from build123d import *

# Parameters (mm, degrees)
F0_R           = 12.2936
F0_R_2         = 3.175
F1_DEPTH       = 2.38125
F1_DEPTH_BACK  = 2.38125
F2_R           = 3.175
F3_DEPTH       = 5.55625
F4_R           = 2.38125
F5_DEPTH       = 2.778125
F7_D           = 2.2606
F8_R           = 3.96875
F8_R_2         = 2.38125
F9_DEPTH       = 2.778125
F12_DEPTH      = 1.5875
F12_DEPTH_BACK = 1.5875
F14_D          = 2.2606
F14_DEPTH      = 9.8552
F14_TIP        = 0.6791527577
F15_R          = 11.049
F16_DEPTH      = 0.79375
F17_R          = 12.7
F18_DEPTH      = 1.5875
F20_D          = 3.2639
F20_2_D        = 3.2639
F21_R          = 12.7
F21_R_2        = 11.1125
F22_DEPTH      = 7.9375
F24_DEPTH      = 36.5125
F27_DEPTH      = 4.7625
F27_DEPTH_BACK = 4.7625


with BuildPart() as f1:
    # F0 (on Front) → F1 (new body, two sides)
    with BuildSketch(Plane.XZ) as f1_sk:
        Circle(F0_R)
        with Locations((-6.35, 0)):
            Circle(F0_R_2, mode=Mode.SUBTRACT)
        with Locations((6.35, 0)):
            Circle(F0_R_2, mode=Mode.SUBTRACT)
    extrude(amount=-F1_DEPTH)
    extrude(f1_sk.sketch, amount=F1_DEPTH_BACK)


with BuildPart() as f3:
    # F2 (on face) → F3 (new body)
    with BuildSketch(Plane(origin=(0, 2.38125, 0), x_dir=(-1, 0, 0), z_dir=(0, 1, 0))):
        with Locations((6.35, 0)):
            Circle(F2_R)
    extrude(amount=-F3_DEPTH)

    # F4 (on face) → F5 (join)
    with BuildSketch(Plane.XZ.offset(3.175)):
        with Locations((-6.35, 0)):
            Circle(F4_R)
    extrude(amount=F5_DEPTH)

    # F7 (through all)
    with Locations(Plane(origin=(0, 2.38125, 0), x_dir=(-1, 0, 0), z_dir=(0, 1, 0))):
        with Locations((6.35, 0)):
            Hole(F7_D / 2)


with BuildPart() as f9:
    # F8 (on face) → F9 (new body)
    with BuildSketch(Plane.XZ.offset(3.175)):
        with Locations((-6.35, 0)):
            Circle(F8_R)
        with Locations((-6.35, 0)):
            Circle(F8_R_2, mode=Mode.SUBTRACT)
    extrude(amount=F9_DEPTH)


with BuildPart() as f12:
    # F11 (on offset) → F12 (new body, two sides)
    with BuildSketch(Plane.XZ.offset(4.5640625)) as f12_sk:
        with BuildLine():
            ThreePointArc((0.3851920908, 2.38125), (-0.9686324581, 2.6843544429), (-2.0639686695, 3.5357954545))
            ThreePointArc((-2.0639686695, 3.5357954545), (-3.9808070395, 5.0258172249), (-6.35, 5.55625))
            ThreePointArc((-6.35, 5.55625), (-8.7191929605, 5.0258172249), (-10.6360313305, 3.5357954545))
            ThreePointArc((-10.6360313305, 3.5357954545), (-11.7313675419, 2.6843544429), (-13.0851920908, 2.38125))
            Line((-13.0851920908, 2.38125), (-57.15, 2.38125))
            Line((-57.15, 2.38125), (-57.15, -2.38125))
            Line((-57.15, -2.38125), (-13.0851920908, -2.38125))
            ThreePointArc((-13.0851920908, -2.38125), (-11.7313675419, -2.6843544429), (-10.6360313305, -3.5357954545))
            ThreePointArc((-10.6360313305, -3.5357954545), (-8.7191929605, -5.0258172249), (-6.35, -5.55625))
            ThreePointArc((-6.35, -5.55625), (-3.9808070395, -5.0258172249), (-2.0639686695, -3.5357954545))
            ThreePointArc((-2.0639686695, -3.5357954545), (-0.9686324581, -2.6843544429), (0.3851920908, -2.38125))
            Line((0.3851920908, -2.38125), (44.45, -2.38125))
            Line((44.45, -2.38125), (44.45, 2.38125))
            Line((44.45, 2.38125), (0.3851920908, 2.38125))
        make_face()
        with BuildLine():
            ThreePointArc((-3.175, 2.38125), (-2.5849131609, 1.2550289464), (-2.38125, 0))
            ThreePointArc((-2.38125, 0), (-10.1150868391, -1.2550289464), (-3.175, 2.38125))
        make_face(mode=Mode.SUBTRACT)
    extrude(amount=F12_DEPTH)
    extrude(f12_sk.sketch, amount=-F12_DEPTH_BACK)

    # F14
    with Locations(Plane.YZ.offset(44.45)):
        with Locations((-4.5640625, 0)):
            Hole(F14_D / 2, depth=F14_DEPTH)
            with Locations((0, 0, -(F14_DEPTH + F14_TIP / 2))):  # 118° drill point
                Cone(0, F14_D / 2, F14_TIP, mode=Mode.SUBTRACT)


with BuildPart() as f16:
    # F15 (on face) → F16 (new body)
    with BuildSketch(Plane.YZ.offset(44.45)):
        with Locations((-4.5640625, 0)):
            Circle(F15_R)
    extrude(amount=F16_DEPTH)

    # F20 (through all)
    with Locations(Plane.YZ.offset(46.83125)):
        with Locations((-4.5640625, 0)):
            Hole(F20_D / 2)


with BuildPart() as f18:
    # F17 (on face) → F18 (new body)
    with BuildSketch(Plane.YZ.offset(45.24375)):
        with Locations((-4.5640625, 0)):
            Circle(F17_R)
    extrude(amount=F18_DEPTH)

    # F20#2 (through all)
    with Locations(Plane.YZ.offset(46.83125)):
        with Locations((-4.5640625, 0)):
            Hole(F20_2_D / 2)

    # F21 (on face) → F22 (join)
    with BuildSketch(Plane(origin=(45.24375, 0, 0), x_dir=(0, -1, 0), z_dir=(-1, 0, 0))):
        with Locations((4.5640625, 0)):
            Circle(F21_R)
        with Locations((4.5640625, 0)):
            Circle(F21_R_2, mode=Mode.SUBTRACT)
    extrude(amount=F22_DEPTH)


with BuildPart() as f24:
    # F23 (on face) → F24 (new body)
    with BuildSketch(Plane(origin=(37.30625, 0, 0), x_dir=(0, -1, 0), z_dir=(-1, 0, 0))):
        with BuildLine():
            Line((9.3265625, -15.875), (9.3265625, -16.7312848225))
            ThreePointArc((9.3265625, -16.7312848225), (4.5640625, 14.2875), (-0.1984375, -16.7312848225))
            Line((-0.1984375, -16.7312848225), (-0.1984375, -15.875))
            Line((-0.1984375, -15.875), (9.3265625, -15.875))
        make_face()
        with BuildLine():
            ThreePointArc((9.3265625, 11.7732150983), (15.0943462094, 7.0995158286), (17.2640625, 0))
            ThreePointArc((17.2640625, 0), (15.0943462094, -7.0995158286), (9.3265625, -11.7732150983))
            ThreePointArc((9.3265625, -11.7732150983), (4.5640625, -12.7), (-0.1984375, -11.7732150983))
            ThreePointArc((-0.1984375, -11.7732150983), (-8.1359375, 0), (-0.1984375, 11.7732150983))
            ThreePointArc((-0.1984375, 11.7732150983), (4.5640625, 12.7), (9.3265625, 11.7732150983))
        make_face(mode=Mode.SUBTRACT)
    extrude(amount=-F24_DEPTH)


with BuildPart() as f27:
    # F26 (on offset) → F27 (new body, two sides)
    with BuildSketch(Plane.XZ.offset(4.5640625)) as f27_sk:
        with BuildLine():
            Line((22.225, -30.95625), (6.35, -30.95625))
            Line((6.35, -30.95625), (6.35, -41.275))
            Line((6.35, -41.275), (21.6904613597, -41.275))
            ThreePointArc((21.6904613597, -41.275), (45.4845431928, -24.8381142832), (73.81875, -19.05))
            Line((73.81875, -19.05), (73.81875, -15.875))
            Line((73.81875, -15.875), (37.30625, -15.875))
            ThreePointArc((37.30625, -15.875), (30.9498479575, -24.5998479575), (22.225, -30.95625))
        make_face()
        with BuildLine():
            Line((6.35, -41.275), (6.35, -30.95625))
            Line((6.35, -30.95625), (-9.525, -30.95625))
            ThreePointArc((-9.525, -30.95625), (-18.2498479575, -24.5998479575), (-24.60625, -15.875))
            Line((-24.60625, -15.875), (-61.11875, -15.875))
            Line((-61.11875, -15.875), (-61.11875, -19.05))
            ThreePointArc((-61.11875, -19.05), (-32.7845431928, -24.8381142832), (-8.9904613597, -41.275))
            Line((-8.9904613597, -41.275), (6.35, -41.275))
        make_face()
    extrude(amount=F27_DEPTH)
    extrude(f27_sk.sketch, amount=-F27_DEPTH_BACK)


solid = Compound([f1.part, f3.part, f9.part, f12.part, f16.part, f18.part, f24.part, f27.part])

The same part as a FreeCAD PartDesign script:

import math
import FreeCAD as App
import Part
import Sketcher

V = App.Vector
Q = App.Units.Quantity

doc = App.newDocument("Part")
body = doc.addObject("PartDesign::Body", "Body")

sketch1 = body.newObject("Sketcher::SketchObject", "Sketch")
sketch1.AttachmentSupport = (doc.getObject("XZ_Plane"), [""])
sketch1.MapMode = "FlatFace"
sketch1.addGeometry([
    Part.Circle(V(0, 0, 0), V(0, 0, 1), 12.3),
    Part.Circle(V(-6.3, 0, 0), V(0, 0, 1), 3.2),
    Part.Circle(V(6.3, 0, 0), V(0, 0, 1), 3.2),
], False)
sketch1.addConstraint([
    Sketcher.Constraint("Coincident", 0, 3, -1, 1),
    Sketcher.Constraint("Equal", 1, 2),
    Sketcher.Constraint("Symmetric", 1, 3, 2, 3, -1, 1),
    Sketcher.Constraint("PointOnObject", 1, 3, -1),
    Sketcher.Constraint("Diameter", 1, Q("0.25 in")),
    Sketcher.Constraint("Diameter", 0, Q("0.968 in")),
    Sketcher.Constraint("DistanceX", 1, 3, 2, 3, Q("0.5 in")),
])
pad1 = body.newObject("PartDesign::Pad", "Pad")
pad1.Profile = sketch1
pad1.Type = "TwoLengths"
pad1.Length = Q("0.09375 in")
pad1.Length2 = Q("0.09375 in")
pad1.Reversed = True
body2 = doc.addObject("PartDesign::Body", "Body001")

sketch2 = body2.newObject("Sketcher::SketchObject", "Sketch001")
sketch2.AttachmentSupport = (doc.getObject("XZ_Plane001"), [""])
sketch2.MapMode = "FlatFace"
sketch2.AttachmentOffset = App.Placement(V(0, 0, -0.09375 * 25.4), App.Rotation())
sketch2.addGeometry(Part.Circle(V(-6.3, 0, 0), V(0, 0, 1), 3.2), False)
sketch2.addConstraint([
    Sketcher.Constraint("PointOnObject", 0, 3, -1),
    Sketcher.Constraint("Diameter", 0, Q("0.25 in")),
    Sketcher.Constraint("DistanceX", 0, 3, -1, 1, Q("0.25 in")),
])
pad2 = body2.newObject("PartDesign::Pad", "Pad001")
pad2.Profile = sketch2
pad2.Length = Q("0.21875 in")

sketch3 = body2.newObject("Sketcher::SketchObject", "Sketch002")
sketch3.AttachmentSupport = (doc.getObject("XZ_Plane001"), [""])
sketch3.MapMode = "FlatFace"
sketch3.AttachmentOffset = App.Placement(V(0, 0, 0.125 * 25.4), App.Rotation())
sketch3.addGeometry(Part.Circle(V(-6.3, 0, 0), V(0, 0, 1), 2.4), False)
sketch3.addConstraint([
    Sketcher.Constraint("PointOnObject", 0, 3, -1),
    Sketcher.Constraint("Diameter", 0, Q("0.1875 in")),
    Sketcher.Constraint("DistanceX", 0, 3, -1, 1, Q("0.25 in")),
])
pad3 = body2.newObject("PartDesign::Pad", "Pad002")
pad3.Profile = sketch3
pad3.Length = Q("0.109375 in")

sketch4 = body2.newObject("Sketcher::SketchObject", "Sketch003")
sketch4.AttachmentSupport = (doc.getObject("XZ_Plane001"), [""])
sketch4.MapMode = "FlatFace"
sketch4.AttachmentOffset = App.Placement(V(0, 0, -0.09375 * 25.4), App.Rotation())
sketch4.addGeometry(Part.Circle(V(-6.3, 0, 0), V(0, 0, 1), 1.1), False)
sketch4.addConstraint([
    Sketcher.Constraint("PointOnObject", 0, 3, -1),
    Sketcher.Constraint("Diameter", 0, Q("0.089 in")),
    Sketcher.Constraint("DistanceX", 0, 3, -1, 1, Q("0.25 in")),
])
doc.recompute()
hole = body2.newObject("PartDesign::Hole", "Hole")
hole.Profile = sketch4
hole.ThreadType = "None"
hole.Diameter = Q("0.089 in")
hole.DepthType = "ThroughAll"
hole.Reversed = True
body3 = doc.addObject("PartDesign::Body", "Body002")

sketch5 = body3.newObject("Sketcher::SketchObject", "Sketch004")
sketch5.AttachmentSupport = (doc.getObject("XZ_Plane002"), [""])
sketch5.MapMode = "FlatFace"
sketch5.AttachmentOffset = App.Placement(V(0, 0, 0.125 * 25.4), App.Rotation())
sketch5.addGeometry([
    Part.Circle(V(-6.3, 0, 0), V(0, 0, 1), 4),
    Part.Circle(V(-6.3, 0, 0), V(0, 0, 1), 2.4),
], False)
sketch5.addConstraint([
    Sketcher.Constraint("Coincident", 1, 3, 0, 3),
    Sketcher.Constraint("PointOnObject", 0, 3, -1),
    Sketcher.Constraint("Diameter", 0, Q("0.3125 in")),
    Sketcher.Constraint("Diameter", 1, Q("0.1875 in")),
    Sketcher.Constraint("DistanceX", 0, 3, -1, 1, Q("0.25 in")),
])
pad4 = body3.newObject("PartDesign::Pad", "Pad003")
pad4.Profile = sketch5
pad4.Length = Q("0.109375 in")
body4 = doc.addObject("PartDesign::Body", "Body003")

sketch6 = body4.newObject("Sketcher::SketchObject", "Sketch005")
sketch6.AttachmentSupport = (doc.getObject("XZ_Plane003"), [""])
sketch6.MapMode = "FlatFace"
sketch6.AttachmentOffset = App.Placement(V(0, 0, 4.564063), App.Rotation())
sketch6.addGeometry([
    Part.ArcOfCircle(Part.Circle(V(0.4, 5.6, 0), V(0, 0, 1), 3.2), math.radians(-140), math.radians(-90)),
    Part.ArcOfCircle(Part.Circle(V(-6.3, 0, 0), V(0, 0, 1), 5.6), math.radians(40), math.radians(90)),
    Part.ArcOfCircle(Part.Circle(V(-6.3, 0, 0), V(0, 0, 1), 5.6), math.radians(90), math.radians(140)),
    Part.ArcOfCircle(Part.Circle(V(-13.1, 5.6, 0), V(0, 0, 1), 3.2), math.radians(-90), math.radians(-40)),
    Part.LineSegment(V(-13.1, 2.4, 0), V(-57.1, 2.4, 0)),
    Part.LineSegment(V(-57.1, 2.4, 0), V(-57.1, -2.4, 0)),
    Part.LineSegment(V(-57.1, -2.4, 0), V(-13.1, -2.4, 0)),
    Part.ArcOfCircle(Part.Circle(V(-13.1, -5.6, 0), V(0, 0, 1), 3.2), math.radians(40), math.radians(90)),
    Part.ArcOfCircle(Part.Circle(V(-6.3, 0, 0), V(0, 0, 1), 5.6), math.radians(-140), math.radians(-90)),
    Part.ArcOfCircle(Part.Circle(V(-6.3, 0, 0), V(0, 0, 1), 5.6), math.radians(-90), math.radians(-40)),
    Part.ArcOfCircle(Part.Circle(V(0.4, -5.6, 0), V(0, 0, 1), 3.2), math.radians(90), math.radians(140)),
    Part.LineSegment(V(0.4, -2.4, 0), V(44.5, -2.4, 0)),
    Part.LineSegment(V(44.5, -2.4, 0), V(44.5, 2.4, 0)),
    Part.LineSegment(V(44.5, 2.4, 0), V(0.4, 2.4, 0)),
    Part.ArcOfCircle(Part.Circle(V(-6.3, 0, 0), V(0, 0, 1), 4), math.radians(37), math.radians(360)),
    Part.ArcOfCircle(Part.Circle(V(-6.4, 0, 0), V(0, 0, 1), 4), math.radians(0), math.radians(37)),
], False)
sketch6.addConstraint([
    Sketcher.Constraint("Tangent", 0, 1, 1, 1),
    Sketcher.Constraint("Tangent", 1, 2, 2, 1),
    Sketcher.Constraint("Tangent", 2, 2, 3, 2),
    Sketcher.Constraint("Tangent", 3, 1, 4, 1),
    Sketcher.Constraint("Coincident", 4, 2, 5, 1),
    Sketcher.Constraint("Coincident", 5, 2, 6, 1),
    Sketcher.Constraint("Tangent", 6, 2, 7, 2),
    Sketcher.Constraint("Tangent", 7, 1, 8, 1),
    Sketcher.Constraint("Tangent", 8, 2, 9, 1),
    Sketcher.Constraint("Tangent", 9, 2, 10, 2),
    Sketcher.Constraint("Tangent", 10, 1, 11, 1),
    Sketcher.Constraint("Coincident", 11, 2, 12, 1),
    Sketcher.Constraint("Coincident", 12, 2, 13, 1),
    Sketcher.Constraint("Tangent", 13, 2, 0, 2),
    Sketcher.Constraint("Tangent", 14, 1, 15, 2),
    Sketcher.Constraint("Coincident", 15, 1, 14, 2),
    Sketcher.Constraint("Horizontal", 4),
    Sketcher.Constraint("Vertical", 5),
    Sketcher.Constraint("Horizontal", 6),
    Sketcher.Constraint("Horizontal", 11),
    Sketcher.Constraint("Vertical", 12),
    Sketcher.Constraint("Horizontal", 13),
    Sketcher.Constraint("Coincident", 8, 3, 1, 3),
    Sketcher.Constraint("Coincident", 14, 3, 1, 3),
    Sketcher.Constraint("Equal", 1, 2),
    Sketcher.Constraint("Equal", 0, 3),
    Sketcher.Constraint("Equal", 3, 7),
    Sketcher.Constraint("Equal", 2, 8),
    Sketcher.Constraint("Equal", 8, 9),
    Sketcher.Constraint("Equal", 7, 10),
    Sketcher.Constraint("Symmetric", 3, 3, 7, 3, -1),
    Sketcher.Constraint("PointOnObject", 15, 1, -1),
    Sketcher.Constraint("Horizontal", 0, 3, 3, 3),
    Sketcher.Constraint("Horizontal", 7, 3, 10, 3),
    Sketcher.Constraint("Horizontal", 3, 3, 1, 2),
    Sketcher.Constraint("Horizontal", 13, 2, 14, 1),
    Sketcher.Constraint("Vertical", 15, 3, 1, 2),
    Sketcher.Constraint("Vertical", 1, 2, 8, 2),
    Sketcher.Constraint("Equal", 6, 11),
    Sketcher.Constraint("Radius", 0, Q("0.125 in")),
    Sketcher.Constraint("Radius", 1, Q("0.21875 in")),
    Sketcher.Constraint("Radius", 14, Q("0.15625 in")),
    Sketcher.Constraint("DistanceX", 4, 2, 15, 3, Q("2 in")),
    Sketcher.Constraint("DistanceX", 1, 3, -1, 1, Q("0.25 in")),
])
pad5 = body4.newObject("PartDesign::Pad", "Pad004")
pad5.Profile = sketch6
pad5.Type = "TwoLengths"
pad5.Length = Q("0.0625 in")
pad5.Length2 = Q("0.0625 in")

sketch7 = body4.newObject("Sketcher::SketchObject", "Sketch006")
sketch7.AttachmentSupport = (doc.getObject("YZ_Plane003"), [""])
sketch7.MapMode = "FlatFace"
sketch7.AttachmentOffset = App.Placement(V(0, 0, 1.75 * 25.4), App.Rotation())
sketch7.addGeometry(Part.Circle(V(-4.6, 0, 0), V(0, 0, 1), 1.1), False)
sketch7.addConstraint([
    Sketcher.Constraint("PointOnObject", 0, 3, -1),
    Sketcher.Constraint("Diameter", 0, Q("0.089 in")),
    Sketcher.Constraint("DistanceX", 0, 3, -1, 1, Q("4.564063 mm")),
])
doc.recompute()
hole2 = body4.newObject("PartDesign::Hole", "Hole001")
hole2.Profile = sketch7
hole2.ThreadType = "None"
hole2.Diameter = Q("0.089 in")
hole2.DepthType = "Dimension"
hole2.Depth = Q("0.388 in")
hole2.DrillPoint = "Angled"
hole2.DrillPointAngle = 118
body5 = doc.addObject("PartDesign::Body", "Body004")

sketch8 = body5.newObject("Sketcher::SketchObject", "Sketch007")
sketch8.AttachmentSupport = (doc.getObject("YZ_Plane004"), [""])
sketch8.MapMode = "FlatFace"
sketch8.AttachmentOffset = App.Placement(V(0, 0, 1.75 * 25.4), App.Rotation())
sketch8.addGeometry(Part.Circle(V(-5, 0, 0), V(0, 0, 1), 11), False)
sketch8.addConstraint([
    Sketcher.Constraint("PointOnObject", 0, 3, -1),
    Sketcher.Constraint("Diameter", 0, Q("0.87 in")),
    Sketcher.Constraint("DistanceX", 0, 3, -1, 1, Q("4.564063 mm")),
])
pad6 = body5.newObject("PartDesign::Pad", "Pad005")
pad6.Profile = sketch8
pad6.Length = Q("0.03125 in")

sketch9 = body5.newObject("Sketcher::SketchObject", "Sketch008")
sketch9.AttachmentSupport = (doc.getObject("YZ_Plane004"), [""])
sketch9.MapMode = "FlatFace"
sketch9.AttachmentOffset = App.Placement(V(0, 0, 1.84375 * 25.4), App.Rotation())
sketch9.addGeometry(Part.Circle(V(-4.6, 0, 0), V(0, 0, 1), 1.6), False)
sketch9.addConstraint([
    Sketcher.Constraint("PointOnObject", 0, 3, -1),
    Sketcher.Constraint("Diameter", 0, Q("0.1285 in")),
    Sketcher.Constraint("DistanceX", 0, 3, -1, 1, Q("4.564063 mm")),
])
doc.recompute()
hole3 = body5.newObject("PartDesign::Hole", "Hole002")
hole3.Profile = sketch9
hole3.ThreadType = "None"
hole3.Diameter = Q("0.1285 in")
hole3.DepthType = "ThroughAll"
body6 = doc.addObject("PartDesign::Body", "Body005")

sketch10 = body6.newObject("Sketcher::SketchObject", "Sketch009")
sketch10.AttachmentSupport = (doc.getObject("YZ_Plane005"), [""])
sketch10.MapMode = "FlatFace"
sketch10.AttachmentOffset = App.Placement(V(0, 0, 1.78125 * 25.4), App.Rotation())
sketch10.addGeometry(Part.Circle(V(-5, 0, 0), V(0, 0, 1), 13), False)
sketch10.addConstraint([
    Sketcher.Constraint("PointOnObject", 0, 3, -1),
    Sketcher.Constraint("Diameter", 0, Q("1 in")),
    Sketcher.Constraint("DistanceX", 0, 3, -1, 1, Q("4.564063 mm")),
])
pad7 = body6.newObject("PartDesign::Pad", "Pad006")
pad7.Profile = sketch10
pad7.Length = Q("0.0625 in")

sketch11 = body6.newObject("Sketcher::SketchObject", "Sketch010")
sketch11.AttachmentSupport = (doc.getObject("YZ_Plane005"), [""])
sketch11.MapMode = "FlatFace"
sketch11.AttachmentOffset = App.Placement(V(0, 0, 1.84375 * 25.4), App.Rotation())
sketch11.addGeometry(Part.Circle(V(-4.6, 0, 0), V(0, 0, 1), 1.6), False)
sketch11.addConstraint([
    Sketcher.Constraint("PointOnObject", 0, 3, -1),
    Sketcher.Constraint("Diameter", 0, Q("0.1285 in")),
    Sketcher.Constraint("DistanceX", 0, 3, -1, 1, Q("4.564063 mm")),
])
doc.recompute()
hole4 = body6.newObject("PartDesign::Hole", "Hole003")
hole4.Profile = sketch11
hole4.ThreadType = "None"
hole4.Diameter = Q("0.1285 in")
hole4.DepthType = "ThroughAll"

sketch12 = body6.newObject("Sketcher::SketchObject", "Sketch011")
sketch12.AttachmentSupport = (doc.getObject("YZ_Plane005"), [""])
sketch12.MapMode = "FlatFace"
sketch12.AttachmentOffset = App.Placement(V(0, 0, 1.78125 * 25.4), App.Rotation())
sketch12.addGeometry([
    Part.Circle(V(-5, 0, 0), V(0, 0, 1), 13),
    Part.Circle(V(-5, 0, 0), V(0, 0, 1), 11),
], False)
sketch12.addConstraint([
    Sketcher.Constraint("Coincident", 1, 3, 0, 3),
    Sketcher.Constraint("PointOnObject", 0, 3, -1),
    Sketcher.Constraint("Diameter", 0, Q("1 in")),
    Sketcher.Constraint("Diameter", 1, Q("0.875 in")),
    Sketcher.Constraint("DistanceX", 0, 3, -1, 1, Q("4.564063 mm")),
])
pad8 = body6.newObject("PartDesign::Pad", "Pad007")
pad8.Profile = sketch12
pad8.Length = Q("0.3125 in")
pad8.Reversed = True
body7 = doc.addObject("PartDesign::Body", "Body006")

sketch13 = body7.newObject("Sketcher::SketchObject", "Sketch012")
sketch13.AttachmentSupport = (doc.getObject("YZ_Plane006"), [""])
sketch13.MapMode = "FlatFace"
sketch13.AttachmentOffset = App.Placement(V(0, 0, 1.46875 * 25.4), App.Rotation())
sketch13.addGeometry([
    Part.LineSegment(V(-9.3, -15.9, 0), V(-9.3, -16.7, 0)),
    Part.ArcOfCircle(Part.Circle(V(-4.6, -1.6, 0), V(0, 0, 1), 15.9), math.radians(-73), math.radians(253)),
    Part.LineSegment(V(0.2, -16.7, 0), V(0.2, -15.9, 0)),
    Part.LineSegment(V(0.2, -15.9, 0), V(-9.3, -15.9, 0)),
    Part.ArcOfCircle(Part.Circle(V(-4.6, 0, 0), V(0, 0, 1), 12.7), math.radians(68), math.radians(112)),
    Part.ArcOfCircle(Part.Circle(V(-4.6, 0, 0), V(0, 0, 1), 12.7), math.radians(112), math.radians(180)),
    Part.ArcOfCircle(Part.Circle(V(-4.6, 0, 0), V(0, 0, 1), 12.7), math.radians(180), math.radians(248)),
    Part.ArcOfCircle(Part.Circle(V(-4.6, 0, 0), V(0, 0, 1), 12.7), math.radians(-112), math.radians(-68)),
    Part.ArcOfCircle(Part.Circle(V(-4.6, 0, 0), V(0, 0, 1), 12.7), math.radians(-68), math.radians(68)),
], False)
sketch13.addConstraint([
    Sketcher.Constraint("Coincident", 0, 2, 1, 2),
    Sketcher.Constraint("Coincident", 1, 1, 2, 1),
    Sketcher.Constraint("Coincident", 2, 2, 3, 1),
    Sketcher.Constraint("Coincident", 3, 2, 0, 1),
    Sketcher.Constraint("Tangent", 4, 2, 5, 1),
    Sketcher.Constraint("Tangent", 5, 2, 6, 1),
    Sketcher.Constraint("Tangent", 6, 2, 7, 1),
    Sketcher.Constraint("Tangent", 7, 2, 8, 1),
    Sketcher.Constraint("Tangent", 8, 2, 4, 1),
    Sketcher.Constraint("Vertical", 0),
    Sketcher.Constraint("Vertical", 2),
    Sketcher.Constraint("Horizontal", 3),
    Sketcher.Constraint("Coincident", 6, 3, 4, 3),
    Sketcher.Constraint("Symmetric", 4, 2, 6, 2, -1),
    Sketcher.Constraint("PointOnObject", 5, 2, -1),
    Sketcher.Constraint("Horizontal", 0, 2, 1, 1),
    Sketcher.Constraint("Horizontal", 6, 2, 7, 2),
    Sketcher.Constraint("Horizontal", 4, 2, 8, 2),
    Sketcher.Constraint("Vertical", 1, 3, 4, 3),
    Sketcher.Constraint("Vertical", 3, 2, 4, 2),
    Sketcher.Constraint("Radius", 4, Q("0.5 in")),
    Sketcher.Constraint("Radius", 1, Q("0.625 in")),
    Sketcher.Constraint("DistanceX", 3, 2, 3, 1, Q("0.375 in")),
    Sketcher.Constraint("DistanceY", 1, 3, -1, 1, Q("0.0625 in")),
    Sketcher.Constraint("DistanceY", 2, 2, -1, 1, Q("0.625 in")),
    Sketcher.Constraint("DistanceX", 1, 3, -1, 1, Q("4.564063 mm")),
])
pad9 = body7.newObject("PartDesign::Pad", "Pad008")
pad9.Profile = sketch13
pad9.Length = Q("1.4375 in")
body8 = doc.addObject("PartDesign::Body", "Body007")

sketch14 = body8.newObject("Sketcher::SketchObject", "Sketch013")
sketch14.AttachmentSupport = (doc.getObject("XZ_Plane007"), [""])
sketch14.MapMode = "FlatFace"
sketch14.AttachmentOffset = App.Placement(V(0, 0, 4.564063), App.Rotation())
sketch14.addGeometry([
    Part.LineSegment(V(22.2, -31, 0), V(-9.5, -31, 0)),
    Part.ArcOfCircle(Part.Circle(V(6.3, 0, 0), V(0, 0, 1), 34.8), math.radians(-153), math.radians(-117)),
    Part.LineSegment(V(-24.6, -15.9, 0), V(-61.1, -15.9, 0)),
    Part.LineSegment(V(-61.1, -15.9, 0), V(-61.1, -19.1, 0)),
    Part.ArcOfCircle(Part.Circle(V(-61.1, -91.3, 0), V(0, 0, 1), 72.2), math.radians(44), math.radians(90)),
    Part.LineSegment(V(-9, -41.3, 0), V(21.7, -41.3, 0)),
    Part.ArcOfCircle(Part.Circle(V(73.8, -91.3, 0), V(0, 0, 1), 72.2), math.radians(90), math.radians(136)),
    Part.LineSegment(V(73.8, -19.1, 0), V(73.8, -15.9, 0)),
    Part.LineSegment(V(73.8, -15.9, 0), V(37.3, -15.9, 0)),
    Part.ArcOfCircle(Part.Circle(V(6.3, 0, 0), V(0, 0, 1), 34.8), math.radians(-63), math.radians(-27)),
], False)
sketch14.addConstraint([
    Sketcher.Constraint("Coincident", 0, 2, 1, 2),
    Sketcher.Constraint("Coincident", 1, 1, 2, 1),
    Sketcher.Constraint("Coincident", 2, 2, 3, 1),
    Sketcher.Constraint("Coincident", 3, 2, 4, 2),
    Sketcher.Constraint("Coincident", 4, 1, 5, 1),
    Sketcher.Constraint("Coincident", 5, 2, 6, 2),
    Sketcher.Constraint("Coincident", 6, 1, 7, 1),
    Sketcher.Constraint("Coincident", 7, 2, 8, 1),
    Sketcher.Constraint("Coincident", 8, 2, 9, 2),
    Sketcher.Constraint("Coincident", 9, 1, 0, 1),
    Sketcher.Constraint("Horizontal", 0),
    Sketcher.Constraint("Horizontal", 2),
    Sketcher.Constraint("Vertical", 3),
    Sketcher.Constraint("Horizontal", 5),
    Sketcher.Constraint("Vertical", 7),
    Sketcher.Constraint("Horizontal", 8),
    Sketcher.Constraint("Coincident", 9, 3, 1, 3),
    Sketcher.Constraint("Equal", 4, 6),
    Sketcher.Constraint("Equal", 1, 9),
    Sketcher.Constraint("PointOnObject", 1, 3, -1),
    Sketcher.Constraint("Horizontal", 4, 3, 6, 3),
    Sketcher.Constraint("Horizontal", 2, 2, 7, 2),
    Sketcher.Constraint("Vertical", 4, 3, 2, 2),
    Sketcher.Constraint("Equal", 2, 8),
    Sketcher.Constraint("DistanceY", 4, 1, 1, 1, Q("1 in")),
    Sketcher.Constraint("DistanceX", 0, 2, 0, 1, Q("1.25 in")),
    Sketcher.Constraint("DistanceX", 2, 2, 2, 1, Q("1.4375 in")),
    Sketcher.Constraint("DistanceY", 3, 2, 3, 1, Q("0.125 in")),
    Sketcher.Constraint("DistanceX", -1, 1, 1, 3, Q("0.25 in")),
    Sketcher.Constraint("DistanceY", 3, 2, -1, 1, Q("0.75 in")),
    Sketcher.Constraint("DistanceX", 4, 3, -1, 1, Q("2.40625 in")),
    Sketcher.Constraint("DistanceX", -1, 1, 6, 3, Q("2.90625 in")),
    Sketcher.Constraint("Radius", 4, Q("72.245424 mm")),
])
pad10 = body8.newObject("PartDesign::Pad", "Pad009")
pad10.Profile = sketch14
pad10.Type = "TwoLengths"
pad10.Length = Q("0.1875 in")
pad10.Length2 = Q("0.1875 in")

doc.recompute()
